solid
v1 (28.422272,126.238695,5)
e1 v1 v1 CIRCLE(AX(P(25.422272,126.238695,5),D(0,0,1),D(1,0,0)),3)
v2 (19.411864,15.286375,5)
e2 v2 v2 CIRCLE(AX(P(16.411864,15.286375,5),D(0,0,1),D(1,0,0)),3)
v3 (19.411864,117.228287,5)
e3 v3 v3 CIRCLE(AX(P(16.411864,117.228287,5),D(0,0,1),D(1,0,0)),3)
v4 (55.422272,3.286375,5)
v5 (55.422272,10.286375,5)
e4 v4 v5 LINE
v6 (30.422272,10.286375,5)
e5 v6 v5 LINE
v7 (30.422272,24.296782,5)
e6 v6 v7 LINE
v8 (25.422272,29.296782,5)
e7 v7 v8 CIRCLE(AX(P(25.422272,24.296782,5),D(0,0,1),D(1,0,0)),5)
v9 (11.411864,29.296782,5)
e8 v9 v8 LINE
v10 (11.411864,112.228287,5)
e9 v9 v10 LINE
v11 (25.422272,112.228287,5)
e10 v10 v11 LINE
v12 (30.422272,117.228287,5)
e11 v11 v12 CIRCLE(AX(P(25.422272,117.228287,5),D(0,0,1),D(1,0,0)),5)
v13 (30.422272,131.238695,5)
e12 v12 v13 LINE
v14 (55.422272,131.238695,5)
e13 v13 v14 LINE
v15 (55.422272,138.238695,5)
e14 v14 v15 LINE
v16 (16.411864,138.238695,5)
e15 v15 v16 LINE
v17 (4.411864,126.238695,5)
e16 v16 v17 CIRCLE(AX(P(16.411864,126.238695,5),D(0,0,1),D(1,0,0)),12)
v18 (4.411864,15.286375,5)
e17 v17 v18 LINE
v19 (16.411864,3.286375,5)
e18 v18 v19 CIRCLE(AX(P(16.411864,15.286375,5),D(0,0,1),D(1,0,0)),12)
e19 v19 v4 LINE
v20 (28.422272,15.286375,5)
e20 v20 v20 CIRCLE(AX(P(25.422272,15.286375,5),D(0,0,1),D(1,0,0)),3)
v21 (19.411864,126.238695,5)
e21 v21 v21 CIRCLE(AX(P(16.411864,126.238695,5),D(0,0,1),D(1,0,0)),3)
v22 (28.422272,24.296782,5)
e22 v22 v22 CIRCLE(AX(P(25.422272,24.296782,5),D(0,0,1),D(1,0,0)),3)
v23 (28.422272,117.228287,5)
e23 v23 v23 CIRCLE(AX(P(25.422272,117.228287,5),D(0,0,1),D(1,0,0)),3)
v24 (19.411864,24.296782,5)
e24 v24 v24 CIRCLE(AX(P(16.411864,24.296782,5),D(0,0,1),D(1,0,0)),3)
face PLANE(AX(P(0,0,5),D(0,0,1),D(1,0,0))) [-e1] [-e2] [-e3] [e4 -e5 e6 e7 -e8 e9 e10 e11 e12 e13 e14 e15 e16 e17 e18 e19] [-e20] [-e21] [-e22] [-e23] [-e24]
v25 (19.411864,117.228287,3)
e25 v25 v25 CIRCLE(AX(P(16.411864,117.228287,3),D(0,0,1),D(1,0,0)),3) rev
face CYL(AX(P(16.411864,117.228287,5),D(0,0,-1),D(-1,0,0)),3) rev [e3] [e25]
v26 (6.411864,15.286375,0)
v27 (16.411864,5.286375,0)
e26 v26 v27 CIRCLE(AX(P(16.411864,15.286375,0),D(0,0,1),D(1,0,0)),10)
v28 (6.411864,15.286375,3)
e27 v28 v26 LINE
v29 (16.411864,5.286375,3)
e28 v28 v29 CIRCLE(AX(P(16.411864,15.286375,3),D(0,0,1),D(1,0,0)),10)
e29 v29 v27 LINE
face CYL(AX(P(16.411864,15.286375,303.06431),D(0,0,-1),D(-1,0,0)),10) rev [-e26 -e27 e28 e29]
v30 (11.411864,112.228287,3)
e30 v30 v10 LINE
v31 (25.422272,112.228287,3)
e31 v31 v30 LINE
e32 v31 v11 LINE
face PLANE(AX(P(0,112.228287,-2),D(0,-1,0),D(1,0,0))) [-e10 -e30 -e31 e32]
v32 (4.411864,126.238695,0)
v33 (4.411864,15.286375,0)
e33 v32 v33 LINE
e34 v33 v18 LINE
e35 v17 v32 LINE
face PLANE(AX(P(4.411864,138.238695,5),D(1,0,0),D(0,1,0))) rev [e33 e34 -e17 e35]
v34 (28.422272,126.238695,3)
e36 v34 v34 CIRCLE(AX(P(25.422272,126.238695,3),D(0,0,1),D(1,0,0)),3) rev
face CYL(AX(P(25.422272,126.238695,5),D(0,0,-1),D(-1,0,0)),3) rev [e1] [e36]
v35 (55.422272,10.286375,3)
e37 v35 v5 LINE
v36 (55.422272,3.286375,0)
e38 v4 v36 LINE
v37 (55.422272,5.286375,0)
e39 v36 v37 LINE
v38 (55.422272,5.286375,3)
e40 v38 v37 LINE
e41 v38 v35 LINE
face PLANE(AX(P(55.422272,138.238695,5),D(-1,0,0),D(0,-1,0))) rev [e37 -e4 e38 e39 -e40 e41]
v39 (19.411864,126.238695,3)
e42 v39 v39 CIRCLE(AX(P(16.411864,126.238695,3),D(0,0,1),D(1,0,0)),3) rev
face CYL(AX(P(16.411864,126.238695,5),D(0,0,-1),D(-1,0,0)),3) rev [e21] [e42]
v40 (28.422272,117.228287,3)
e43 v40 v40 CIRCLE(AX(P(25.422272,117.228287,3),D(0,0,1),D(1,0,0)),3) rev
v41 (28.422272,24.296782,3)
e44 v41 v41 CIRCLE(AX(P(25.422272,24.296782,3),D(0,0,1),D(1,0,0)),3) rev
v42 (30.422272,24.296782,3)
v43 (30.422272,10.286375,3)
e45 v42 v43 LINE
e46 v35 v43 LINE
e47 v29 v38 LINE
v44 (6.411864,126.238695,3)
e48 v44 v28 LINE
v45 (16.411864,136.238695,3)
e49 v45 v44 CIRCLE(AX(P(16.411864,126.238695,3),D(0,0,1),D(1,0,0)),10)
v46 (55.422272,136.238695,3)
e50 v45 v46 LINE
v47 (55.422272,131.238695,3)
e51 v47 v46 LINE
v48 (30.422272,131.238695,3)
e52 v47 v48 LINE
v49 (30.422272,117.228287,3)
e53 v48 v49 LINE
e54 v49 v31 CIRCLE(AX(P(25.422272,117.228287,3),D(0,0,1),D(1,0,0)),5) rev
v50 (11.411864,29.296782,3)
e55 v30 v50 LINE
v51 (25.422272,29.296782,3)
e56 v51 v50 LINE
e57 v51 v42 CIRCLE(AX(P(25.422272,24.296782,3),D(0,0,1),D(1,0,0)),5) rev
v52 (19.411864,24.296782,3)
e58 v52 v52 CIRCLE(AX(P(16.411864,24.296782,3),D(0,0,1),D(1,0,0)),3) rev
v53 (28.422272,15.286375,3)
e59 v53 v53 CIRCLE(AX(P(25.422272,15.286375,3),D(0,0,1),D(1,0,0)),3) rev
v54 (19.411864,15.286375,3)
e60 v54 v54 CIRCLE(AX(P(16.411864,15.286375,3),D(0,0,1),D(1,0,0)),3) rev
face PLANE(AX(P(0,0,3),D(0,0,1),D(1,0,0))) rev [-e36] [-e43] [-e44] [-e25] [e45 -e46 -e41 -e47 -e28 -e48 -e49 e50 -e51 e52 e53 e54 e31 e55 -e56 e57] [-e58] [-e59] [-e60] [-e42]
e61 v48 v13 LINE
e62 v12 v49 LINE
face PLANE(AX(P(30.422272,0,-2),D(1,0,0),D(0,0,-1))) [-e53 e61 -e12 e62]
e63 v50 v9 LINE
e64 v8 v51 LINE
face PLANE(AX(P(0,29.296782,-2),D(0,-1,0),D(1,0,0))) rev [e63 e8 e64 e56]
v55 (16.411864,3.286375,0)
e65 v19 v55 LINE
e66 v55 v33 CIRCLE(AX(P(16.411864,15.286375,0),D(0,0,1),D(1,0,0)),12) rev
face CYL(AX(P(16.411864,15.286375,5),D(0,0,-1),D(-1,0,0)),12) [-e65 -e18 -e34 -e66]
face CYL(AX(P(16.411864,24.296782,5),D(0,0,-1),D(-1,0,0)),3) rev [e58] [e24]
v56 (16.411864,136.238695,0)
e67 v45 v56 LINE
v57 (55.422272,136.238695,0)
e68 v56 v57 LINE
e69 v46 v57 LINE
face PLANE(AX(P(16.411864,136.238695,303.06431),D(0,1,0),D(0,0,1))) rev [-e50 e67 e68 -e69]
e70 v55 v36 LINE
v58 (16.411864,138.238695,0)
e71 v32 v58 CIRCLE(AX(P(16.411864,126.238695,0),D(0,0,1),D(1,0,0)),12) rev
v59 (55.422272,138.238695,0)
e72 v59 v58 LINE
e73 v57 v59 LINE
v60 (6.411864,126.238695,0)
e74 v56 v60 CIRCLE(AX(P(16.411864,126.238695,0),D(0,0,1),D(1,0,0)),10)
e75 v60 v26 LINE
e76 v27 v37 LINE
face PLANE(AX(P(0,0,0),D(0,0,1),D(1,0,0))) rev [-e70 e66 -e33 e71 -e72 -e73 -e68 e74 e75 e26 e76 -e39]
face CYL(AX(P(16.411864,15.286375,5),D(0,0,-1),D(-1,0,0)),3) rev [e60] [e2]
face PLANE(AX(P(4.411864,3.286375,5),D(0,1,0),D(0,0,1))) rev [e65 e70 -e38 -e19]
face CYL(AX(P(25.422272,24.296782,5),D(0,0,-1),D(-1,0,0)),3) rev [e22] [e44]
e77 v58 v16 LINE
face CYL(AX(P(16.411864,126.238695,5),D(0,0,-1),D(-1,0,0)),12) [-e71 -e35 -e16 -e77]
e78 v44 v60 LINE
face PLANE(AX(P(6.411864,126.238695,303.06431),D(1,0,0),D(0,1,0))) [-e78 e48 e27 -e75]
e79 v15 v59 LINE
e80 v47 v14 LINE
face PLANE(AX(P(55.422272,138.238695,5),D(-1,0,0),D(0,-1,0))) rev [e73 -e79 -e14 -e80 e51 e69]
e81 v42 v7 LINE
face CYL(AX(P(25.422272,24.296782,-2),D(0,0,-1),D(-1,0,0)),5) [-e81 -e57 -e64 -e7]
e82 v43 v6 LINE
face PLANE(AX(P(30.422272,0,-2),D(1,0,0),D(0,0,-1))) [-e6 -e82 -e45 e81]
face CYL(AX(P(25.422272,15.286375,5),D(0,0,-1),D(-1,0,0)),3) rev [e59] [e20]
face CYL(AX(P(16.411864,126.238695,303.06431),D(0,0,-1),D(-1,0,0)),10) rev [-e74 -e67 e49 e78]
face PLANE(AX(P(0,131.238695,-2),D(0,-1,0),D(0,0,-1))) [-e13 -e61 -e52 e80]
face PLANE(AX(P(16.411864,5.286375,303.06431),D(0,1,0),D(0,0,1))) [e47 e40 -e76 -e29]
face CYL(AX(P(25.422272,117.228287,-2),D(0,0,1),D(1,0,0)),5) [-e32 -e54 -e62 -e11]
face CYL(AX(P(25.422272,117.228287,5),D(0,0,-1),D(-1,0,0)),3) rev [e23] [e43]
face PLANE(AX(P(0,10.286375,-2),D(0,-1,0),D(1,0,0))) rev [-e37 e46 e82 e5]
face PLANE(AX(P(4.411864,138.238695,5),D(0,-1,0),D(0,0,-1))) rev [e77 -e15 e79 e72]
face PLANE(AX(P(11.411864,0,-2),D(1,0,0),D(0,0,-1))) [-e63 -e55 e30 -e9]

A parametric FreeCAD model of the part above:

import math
import FreeCAD as App
import Part
import Sketcher
Q = App.Units.Quantity


def edges_at(feature, points):
    """Names of the edges that pass closest to the given points."""
    edges = feature.Shape.Edges
    near = lambda p: min(range(len(edges)), key=lambda i: edges[i].distToShape(Part.Vertex(*p))[0])
    return sorted({f"Edge{near(p) + 1}" for p in points})


def add_polygon(sketch, points):
    """Adds a closed chain of lines whose ends are joined by coincident constraints."""
    first, n = sketch.GeometryCount, len(points)
    for a, b in zip(points, points[1:] + points[:1]):
        sketch.addGeometry(Part.LineSegment(App.Vector(*a, 0), App.Vector(*b, 0)), False)
    for i in range(n):
        sketch.addConstraint(Sketcher.Constraint("Coincident", first + i, 2, first + (i + 1) % n, 1))

doc = App.newDocument("Part")
body = doc.addObject("PartDesign::Body", "Body")
body.AllowCompound = True

sketch1 = doc.addObject("Sketcher::SketchObject", "Sketch")
body.addObject(sketch1)
sketch1.AttachmentSupport = (doc.XY_Plane, [""])
sketch1.MapMode = "FlatFace"
add_polygon(sketch1, [(11, 112), (11, 29), (30, 29), (30, 10), (80, 10), (80, 131), (30, 131), (30, 112)])
add_polygon(sketch1, [(250, 10), (250, 29), (269, 29), (269, 112), (250, 112), (250, 131), (200, 131), (200, 10)])
sketch1.addConstraint(Sketcher.Constraint("Vertical", 0))
sketch1.addConstraint(Sketcher.Constraint("Horizontal", 1))
sketch1.addConstraint(Sketcher.Constraint("Vertical", 2))
sketch1.addConstraint(Sketcher.Constraint("Horizontal", 3))
sketch1.addConstraint(Sketcher.Constraint("Vertical", 4))
sketch1.addConstraint(Sketcher.Constraint("Horizontal", 5))
sketch1.addConstraint(Sketcher.Constraint("Vertical", 6))
sketch1.addConstraint(Sketcher.Constraint("Horizontal", 7))
sketch1.addConstraint(Sketcher.Constraint("Vertical", 8))
sketch1.addConstraint(Sketcher.Constraint("Horizontal", 9))
sketch1.addConstraint(Sketcher.Constraint("Vertical", 10))
sketch1.addConstraint(Sketcher.Constraint("Horizontal", 11))
sketch1.addConstraint(Sketcher.Constraint("Vertical", 12))
sketch1.addConstraint(Sketcher.Constraint("Horizontal", 13))
sketch1.addConstraint(Sketcher.Constraint("Vertical", 14))
sketch1.addConstraint(Sketcher.Constraint("Horizontal", 15))
sketch1.addConstraint(Sketcher.Constraint("Horizontal", 1, 2, 8, 2))
sketch1.addConstraint(Sketcher.Constraint("Horizontal", 7, 2, 10, 2))
sketch1.addConstraint(Sketcher.Constraint("Horizontal", 5, 2, 12, 2))
sketch1.addConstraint(Sketcher.Constraint("Horizontal", 3, 2, 14, 2))
sketch1.addConstraint(Sketcher.Constraint("Vertical", 2, 2, 5, 2))
sketch1.addConstraint(Sketcher.Constraint("Vertical", 8, 2, 11, 2))
sketch1.addConstraint(Sketcher.Constraint("Equal", 7, 9))
sketch1.addConstraint(Sketcher.Constraint("Equal", 5, 13))
sketch1.addConstraint(Sketcher.Constraint("Equal", 11, 2))
sketch1.addConstraint(Sketcher.Constraint("Equal", 2, 6))
sketch1.addConstraint(Sketcher.Constraint("DistanceX", 3, 1, 3, 2, Q("50 mm")))
sketch1.addConstraint(Sketcher.Constraint("DistanceY", 4, 1, 4, 2, Q("120.95232 mm")))
sketch1.addConstraint(Sketcher.Constraint("DistanceX", 1, 1, 1, 2, Q("19.010408 mm")))
sketch1.addConstraint(Sketcher.Constraint("DistanceX", -1, 1, 8, 2, Q("250.158479 mm")))
sketch1.addConstraint(Sketcher.Constraint("DistanceX", -1, 1, 0, 2, Q("11.411864 mm")))
sketch1.addConstraint(Sketcher.Constraint("DistanceY", -1, 1, 0, 2, Q("29.296782 mm")))
pad1 = doc.addObject("PartDesign::Pad", "Pad")
body.addObject(pad1)
pad1.Profile = sketch1
pad1.Length = 2
pad1.Reversed = True

sketch2 = doc.addObject("Sketcher::SketchObject", "Sketch001")
body.addObject(sketch2)
sketch2.AttachmentSupport = (doc.XY_Plane, [""])
sketch2.MapMode = "FlatFace"
add_polygon(sketch2, [(4, 138), (4, 3), (55, 3), (55, 138)])
sketch2.addConstraint(Sketcher.Constraint("Vertical", 0))
sketch2.addConstraint(Sketcher.Constraint("Horizontal", 1))
sketch2.addConstraint(Sketcher.Constraint("Vertical", 2))
sketch2.addConstraint(Sketcher.Constraint("Horizontal", 3))
sketch2.addConstraint(Sketcher.Constraint("DistanceY", 0, 2, 0, 1, Q("134.95232 mm")))
sketch2.addConstraint(Sketcher.Constraint("DistanceX", 1, 1, 1, 2, Q("51.010408 mm")))
sketch2.addConstraint(Sketcher.Constraint("DistanceX", -1, 1, 0, 2, Q("4.411864 mm")))
sketch2.addConstraint(Sketcher.Constraint("DistanceY", -1, 1, 0, 2, Q("3.286375 mm")))
pad2 = doc.addObject("PartDesign::Pad", "Pad001")
body.addObject(pad2)
pad2.Profile = sketch2
pad2.Length = 5

sketch3 = doc.addObject("Sketcher::SketchObject", "Sketch002")
body.addObject(sketch3)
sketch3.AttachmentSupport = (doc.XY_Plane, [""])
sketch3.MapMode = "FlatFace"
add_polygon(sketch3, [(11, 112), (11, 29), (30, 29), (30, 10), (80, 10), (80, 131), (30, 131), (30, 112)])
add_polygon(sketch3, [(250, 10), (250, 29), (269, 29), (269, 112), (250, 112), (250, 131), (200, 131), (200, 10)])
sketch3.addConstraint(Sketcher.Constraint("Vertical", 0))
sketch3.addConstraint(Sketcher.Constraint("Horizontal", 1))
sketch3.addConstraint(Sketcher.Constraint("Vertical", 2))
sketch3.addConstraint(Sketcher.Constraint("Horizontal", 3))
sketch3.addConstraint(Sketcher.Constraint("Vertical", 4))
sketch3.addConstraint(Sketcher.Constraint("Horizontal", 5))
sketch3.addConstraint(Sketcher.Constraint("Vertical", 6))
sketch3.addConstraint(Sketcher.Constraint("Horizontal", 7))
sketch3.addConstraint(Sketcher.Constraint("Vertical", 8))
sketch3.addConstraint(Sketcher.Constraint("Horizontal", 9))
sketch3.addConstraint(Sketcher.Constraint("Vertical", 10))
sketch3.addConstraint(Sketcher.Constraint("Horizontal", 11))
sketch3.addConstraint(Sketcher.Constraint("Vertical", 12))
sketch3.addConstraint(Sketcher.Constraint("Horizontal", 13))
sketch3.addConstraint(Sketcher.Constraint("Vertical", 14))
sketch3.addConstraint(Sketcher.Constraint("Horizontal", 15))
sketch3.addConstraint(Sketcher.Constraint("Horizontal", 1, 2, 8, 2))
sketch3.addConstraint(Sketcher.Constraint("Horizontal", 7, 2, 10, 2))
sketch3.addConstraint(Sketcher.Constraint("Horizontal", 5, 2, 12, 2))
sketch3.addConstraint(Sketcher.Constraint("Horizontal", 3, 2, 14, 2))
sketch3.addConstraint(Sketcher.Constraint("Vertical", 2, 2, 5, 2))
sketch3.addConstraint(Sketcher.Constraint("Vertical", 8, 2, 11, 2))
sketch3.addConstraint(Sketcher.Constraint("Equal", 7, 9))
sketch3.addConstraint(Sketcher.Constraint("Equal", 5, 13))
sketch3.addConstraint(Sketcher.Constraint("Equal", 11, 2))
sketch3.addConstraint(Sketcher.Constraint("Equal", 2, 6))
sketch3.addConstraint(Sketcher.Constraint("DistanceX", 3, 1, 3, 2, Q("50 mm")))
sketch3.addConstraint(Sketcher.Constraint("DistanceY", 4, 1, 4, 2, Q("120.95232 mm")))
sketch3.addConstraint(Sketcher.Constraint("DistanceX", 1, 1, 1, 2, Q("19.010408 mm")))
sketch3.addConstraint(Sketcher.Constraint("DistanceX", -1, 1, 8, 2, Q("250.158479 mm")))
sketch3.addConstraint(Sketcher.Constraint("DistanceX", -1, 1, 0, 2, Q("11.411864 mm")))
sketch3.addConstraint(Sketcher.Constraint("DistanceY", -1, 1, 0, 2, Q("29.296782 mm")))
pocket1 = doc.addObject("PartDesign::Pocket", "Pocket")
body.addObject(pocket1)
pocket1.Profile = sketch3
pocket1.Type = "ThroughAll"
pocket1.Midplane = True

sketch4 = doc.addObject("Sketcher::SketchObject", "Sketch003")
body.addObject(sketch4)
sketch4.AttachmentSupport = (doc.XY_Plane, [""])
sketch4.MapMode = "FlatFace"
sketch4.addGeometry(Part.LineSegment(App.Vector(264, 136, 0), App.Vector(16, 136, 0)), False)
sketch4.addGeometry(Part.ArcOfCircle(Part.Circle(App.Vector(16, 126, 0), App.Vector(0, 0, 1), 10), math.radians(90), math.radians(180)), False)
sketch4.addGeometry(Part.LineSegment(App.Vector(6, 126, 0), App.Vector(6, 15, 0)), False)
sketch4.addGeometry(Part.ArcOfCircle(Part.Circle(App.Vector(16, 15, 0), App.Vector(0, 0, 1), 10), math.radians(180), math.radians(270)), False)
sketch4.addGeometry(Part.LineSegment(App.Vector(16, 5, 0), App.Vector(264, 5, 0)), False)
sketch4.addGeometry(Part.ArcOfCircle(Part.Circle(App.Vector(264, 15, 0), App.Vector(0, 0, 1), 10), math.radians(-90), math.radians(0)), False)
sketch4.addGeometry(Part.LineSegment(App.Vector(274, 15, 0), App.Vector(274, 126, 0)), False)
sketch4.addGeometry(Part.ArcOfCircle(Part.Circle(App.Vector(264, 126, 0), App.Vector(0, 0, 1), 10), math.radians(0), math.radians(90)), False)
sketch4.addConstraint(Sketcher.Constraint("Tangent", 0, 2, 1, 1))
sketch4.addConstraint(Sketcher.Constraint("Tangent", 1, 2, 2, 1))
sketch4.addConstraint(Sketcher.Constraint("Tangent", 2, 2, 3, 1))
sketch4.addConstraint(Sketcher.Constraint("Tangent", 3, 2, 4, 1))
sketch4.addConstraint(Sketcher.Constraint("Tangent", 4, 2, 5, 1))
sketch4.addConstraint(Sketcher.Constraint("Tangent", 5, 2, 6, 1))
sketch4.addConstraint(Sketcher.Constraint("Tangent", 6, 2, 7, 1))
sketch4.addConstraint(Sketcher.Constraint("Tangent", 7, 2, 0, 1))
sketch4.addConstraint(Sketcher.Constraint("Horizontal", 0))
sketch4.addConstraint(Sketcher.Constraint("Vertical", 2))
sketch4.addConstraint(Sketcher.Constraint("Horizontal", 4))
sketch4.addConstraint(Sketcher.Constraint("Vertical", 6))
sketch4.addConstraint(Sketcher.Constraint("Equal", 1, 3))
sketch4.addConstraint(Sketcher.Constraint("Equal", 3, 5))
sketch4.addConstraint(Sketcher.Constraint("Equal", 5, 7))
sketch4.addConstraint(Sketcher.Constraint("Radius", 1, Q("10 mm")))
sketch4.addConstraint(Sketcher.Constraint("DistanceY", 2, 2, 2, 1, Q("110.95232 mm")))
sketch4.addConstraint(Sketcher.Constraint("DistanceX", 0, 2, 0, 1, Q("247.757022 mm")))
sketch4.addConstraint(Sketcher.Constraint("DistanceX", -1, 1, 1, 3, Q("16.411864 mm")))
sketch4.addConstraint(Sketcher.Constraint("DistanceY", -1, 1, 1, 3, Q("126.238695 mm")))
pocket2 = doc.addObject("PartDesign::Pocket", "Pocket001")
body.addObject(pocket2)
pocket2.Profile = sketch4
pocket2.Length = 3
pocket2.Reversed = True
doc.recompute()

fillet = doc.addObject("PartDesign::Fillet", "Fillet")
body.addObject(fillet)
fillet.Base = (pocket2, edges_at(pocket2, [(4.412, 138.239, 2.5), (4.412, 3.286, 2.5)]))
fillet.Radius = 12

sketch5 = doc.addObject("Sketcher::SketchObject", "Sketch004")
body.addObject(sketch5)
sketch5.AttachmentSupport = (doc.XY_Plane, [""])
sketch5.MapMode = "FlatFace"
sketch5.addGeometry(Part.Circle(App.Vector(25.4, 117.2, 0), App.Vector(0, 0, 1), 3), False)
sketch5.addGeometry(Part.Circle(App.Vector(16.4, 15.3, 0), App.Vector(0, 0, 1), 3), False)
sketch5.addGeometry(Part.Circle(App.Vector(16.4, 117.2, 0), App.Vector(0, 0, 1), 3), False)
sketch5.addGeometry(Part.Circle(App.Vector(25.4, 15.3, 0), App.Vector(0, 0, 1), 3), False)
sketch5.addGeometry(Part.Circle(App.Vector(25.4, 24.3, 0), App.Vector(0, 0, 1), 3), False)
sketch5.addGeometry(Part.Circle(App.Vector(16.4, 24.3, 0), App.Vector(0, 0, 1), 3), False)
sketch5.addGeometry(Part.Circle(App.Vector(25.4, 126.2, 0), App.Vector(0, 0, 1), 3), False)
sketch5.addGeometry(Part.Circle(App.Vector(16.4, 126.2, 0), App.Vector(0, 0, 1), 3), False)
sketch5.addConstraint(Sketcher.Constraint("Equal", 0, 1))
sketch5.addConstraint(Sketcher.Constraint("Equal", 1, 2))
sketch5.addConstraint(Sketcher.Constraint("Equal", 2, 3))
sketch5.addConstraint(Sketcher.Constraint("Equal", 3, 4))
sketch5.addConstraint(Sketcher.Constraint("Equal", 4, 5))
sketch5.addConstraint(Sketcher.Constraint("Equal", 5, 6))
sketch5.addConstraint(Sketcher.Constraint("Equal", 6, 7))
sketch5.addConstraint(Sketcher.Constraint("Horizontal", 0, 3, 2, 3))
sketch5.addConstraint(Sketcher.Constraint("Horizontal", 1, 3, 3, 3))
sketch5.addConstraint(Sketcher.Constraint("Horizontal", 4, 3, 5, 3))
sketch5.addConstraint(Sketcher.Constraint("Horizontal", 6, 3, 7, 3))
sketch5.addConstraint(Sketcher.Constraint("Vertical", 1, 3, 2, 3))
sketch5.addConstraint(Sketcher.Constraint("Vertical", 0, 3, 3, 3))
sketch5.addConstraint(Sketcher.Constraint("Vertical", 3, 3, 4, 3))
sketch5.addConstraint(Sketcher.Constraint("Vertical", 2, 3, 5, 3))
sketch5.addConstraint(Sketcher.Constraint("Vertical", 4, 3, 6, 3))
sketch5.addConstraint(Sketcher.Constraint("Vertical", 5, 3, 7, 3))
sketch5.addConstraint(Sketcher.Constraint("Diameter", 0, Q("6 mm")))
sketch5.addConstraint(Sketcher.Constraint("DistanceY", 3, 3, 6, 3, Q("110.95232 mm")))
sketch5.addConstraint(Sketcher.Constraint("DistanceX", -1, 1, 0, 3, Q("25.422272 mm")))
sketch5.addConstraint(Sketcher.Constraint("DistanceY", -1, 1, 0, 3, Q("117.228287 mm")))
sketch5.addConstraint(Sketcher.Constraint("DistanceX", -1, 1, 1, 3, Q("16.411864 mm")))
sketch5.addConstraint(Sketcher.Constraint("DistanceY", -1, 1, 1, 3, Q("15.286375 mm")))
sketch5.addConstraint(Sketcher.Constraint("DistanceY", -1, 1, 4, 3, Q("24.296782 mm")))
pocket3 = doc.addObject("PartDesign::Pocket", "Pocket002")
body.addObject(pocket3)
pocket3.Profile = sketch5
pocket3.Type = "ThroughAll"
pocket3.Reversed = True
doc.recompute()

fillet2 = doc.addObject("PartDesign::Fillet", "Fillet001")
body.addObject(fillet2)
fillet2.Base = (pocket3, edges_at(pocket3, [(30.422, 29.297, 4), (30.422, 112.228, 4)]))
fillet2.Radius = 5

doc.recompute()
